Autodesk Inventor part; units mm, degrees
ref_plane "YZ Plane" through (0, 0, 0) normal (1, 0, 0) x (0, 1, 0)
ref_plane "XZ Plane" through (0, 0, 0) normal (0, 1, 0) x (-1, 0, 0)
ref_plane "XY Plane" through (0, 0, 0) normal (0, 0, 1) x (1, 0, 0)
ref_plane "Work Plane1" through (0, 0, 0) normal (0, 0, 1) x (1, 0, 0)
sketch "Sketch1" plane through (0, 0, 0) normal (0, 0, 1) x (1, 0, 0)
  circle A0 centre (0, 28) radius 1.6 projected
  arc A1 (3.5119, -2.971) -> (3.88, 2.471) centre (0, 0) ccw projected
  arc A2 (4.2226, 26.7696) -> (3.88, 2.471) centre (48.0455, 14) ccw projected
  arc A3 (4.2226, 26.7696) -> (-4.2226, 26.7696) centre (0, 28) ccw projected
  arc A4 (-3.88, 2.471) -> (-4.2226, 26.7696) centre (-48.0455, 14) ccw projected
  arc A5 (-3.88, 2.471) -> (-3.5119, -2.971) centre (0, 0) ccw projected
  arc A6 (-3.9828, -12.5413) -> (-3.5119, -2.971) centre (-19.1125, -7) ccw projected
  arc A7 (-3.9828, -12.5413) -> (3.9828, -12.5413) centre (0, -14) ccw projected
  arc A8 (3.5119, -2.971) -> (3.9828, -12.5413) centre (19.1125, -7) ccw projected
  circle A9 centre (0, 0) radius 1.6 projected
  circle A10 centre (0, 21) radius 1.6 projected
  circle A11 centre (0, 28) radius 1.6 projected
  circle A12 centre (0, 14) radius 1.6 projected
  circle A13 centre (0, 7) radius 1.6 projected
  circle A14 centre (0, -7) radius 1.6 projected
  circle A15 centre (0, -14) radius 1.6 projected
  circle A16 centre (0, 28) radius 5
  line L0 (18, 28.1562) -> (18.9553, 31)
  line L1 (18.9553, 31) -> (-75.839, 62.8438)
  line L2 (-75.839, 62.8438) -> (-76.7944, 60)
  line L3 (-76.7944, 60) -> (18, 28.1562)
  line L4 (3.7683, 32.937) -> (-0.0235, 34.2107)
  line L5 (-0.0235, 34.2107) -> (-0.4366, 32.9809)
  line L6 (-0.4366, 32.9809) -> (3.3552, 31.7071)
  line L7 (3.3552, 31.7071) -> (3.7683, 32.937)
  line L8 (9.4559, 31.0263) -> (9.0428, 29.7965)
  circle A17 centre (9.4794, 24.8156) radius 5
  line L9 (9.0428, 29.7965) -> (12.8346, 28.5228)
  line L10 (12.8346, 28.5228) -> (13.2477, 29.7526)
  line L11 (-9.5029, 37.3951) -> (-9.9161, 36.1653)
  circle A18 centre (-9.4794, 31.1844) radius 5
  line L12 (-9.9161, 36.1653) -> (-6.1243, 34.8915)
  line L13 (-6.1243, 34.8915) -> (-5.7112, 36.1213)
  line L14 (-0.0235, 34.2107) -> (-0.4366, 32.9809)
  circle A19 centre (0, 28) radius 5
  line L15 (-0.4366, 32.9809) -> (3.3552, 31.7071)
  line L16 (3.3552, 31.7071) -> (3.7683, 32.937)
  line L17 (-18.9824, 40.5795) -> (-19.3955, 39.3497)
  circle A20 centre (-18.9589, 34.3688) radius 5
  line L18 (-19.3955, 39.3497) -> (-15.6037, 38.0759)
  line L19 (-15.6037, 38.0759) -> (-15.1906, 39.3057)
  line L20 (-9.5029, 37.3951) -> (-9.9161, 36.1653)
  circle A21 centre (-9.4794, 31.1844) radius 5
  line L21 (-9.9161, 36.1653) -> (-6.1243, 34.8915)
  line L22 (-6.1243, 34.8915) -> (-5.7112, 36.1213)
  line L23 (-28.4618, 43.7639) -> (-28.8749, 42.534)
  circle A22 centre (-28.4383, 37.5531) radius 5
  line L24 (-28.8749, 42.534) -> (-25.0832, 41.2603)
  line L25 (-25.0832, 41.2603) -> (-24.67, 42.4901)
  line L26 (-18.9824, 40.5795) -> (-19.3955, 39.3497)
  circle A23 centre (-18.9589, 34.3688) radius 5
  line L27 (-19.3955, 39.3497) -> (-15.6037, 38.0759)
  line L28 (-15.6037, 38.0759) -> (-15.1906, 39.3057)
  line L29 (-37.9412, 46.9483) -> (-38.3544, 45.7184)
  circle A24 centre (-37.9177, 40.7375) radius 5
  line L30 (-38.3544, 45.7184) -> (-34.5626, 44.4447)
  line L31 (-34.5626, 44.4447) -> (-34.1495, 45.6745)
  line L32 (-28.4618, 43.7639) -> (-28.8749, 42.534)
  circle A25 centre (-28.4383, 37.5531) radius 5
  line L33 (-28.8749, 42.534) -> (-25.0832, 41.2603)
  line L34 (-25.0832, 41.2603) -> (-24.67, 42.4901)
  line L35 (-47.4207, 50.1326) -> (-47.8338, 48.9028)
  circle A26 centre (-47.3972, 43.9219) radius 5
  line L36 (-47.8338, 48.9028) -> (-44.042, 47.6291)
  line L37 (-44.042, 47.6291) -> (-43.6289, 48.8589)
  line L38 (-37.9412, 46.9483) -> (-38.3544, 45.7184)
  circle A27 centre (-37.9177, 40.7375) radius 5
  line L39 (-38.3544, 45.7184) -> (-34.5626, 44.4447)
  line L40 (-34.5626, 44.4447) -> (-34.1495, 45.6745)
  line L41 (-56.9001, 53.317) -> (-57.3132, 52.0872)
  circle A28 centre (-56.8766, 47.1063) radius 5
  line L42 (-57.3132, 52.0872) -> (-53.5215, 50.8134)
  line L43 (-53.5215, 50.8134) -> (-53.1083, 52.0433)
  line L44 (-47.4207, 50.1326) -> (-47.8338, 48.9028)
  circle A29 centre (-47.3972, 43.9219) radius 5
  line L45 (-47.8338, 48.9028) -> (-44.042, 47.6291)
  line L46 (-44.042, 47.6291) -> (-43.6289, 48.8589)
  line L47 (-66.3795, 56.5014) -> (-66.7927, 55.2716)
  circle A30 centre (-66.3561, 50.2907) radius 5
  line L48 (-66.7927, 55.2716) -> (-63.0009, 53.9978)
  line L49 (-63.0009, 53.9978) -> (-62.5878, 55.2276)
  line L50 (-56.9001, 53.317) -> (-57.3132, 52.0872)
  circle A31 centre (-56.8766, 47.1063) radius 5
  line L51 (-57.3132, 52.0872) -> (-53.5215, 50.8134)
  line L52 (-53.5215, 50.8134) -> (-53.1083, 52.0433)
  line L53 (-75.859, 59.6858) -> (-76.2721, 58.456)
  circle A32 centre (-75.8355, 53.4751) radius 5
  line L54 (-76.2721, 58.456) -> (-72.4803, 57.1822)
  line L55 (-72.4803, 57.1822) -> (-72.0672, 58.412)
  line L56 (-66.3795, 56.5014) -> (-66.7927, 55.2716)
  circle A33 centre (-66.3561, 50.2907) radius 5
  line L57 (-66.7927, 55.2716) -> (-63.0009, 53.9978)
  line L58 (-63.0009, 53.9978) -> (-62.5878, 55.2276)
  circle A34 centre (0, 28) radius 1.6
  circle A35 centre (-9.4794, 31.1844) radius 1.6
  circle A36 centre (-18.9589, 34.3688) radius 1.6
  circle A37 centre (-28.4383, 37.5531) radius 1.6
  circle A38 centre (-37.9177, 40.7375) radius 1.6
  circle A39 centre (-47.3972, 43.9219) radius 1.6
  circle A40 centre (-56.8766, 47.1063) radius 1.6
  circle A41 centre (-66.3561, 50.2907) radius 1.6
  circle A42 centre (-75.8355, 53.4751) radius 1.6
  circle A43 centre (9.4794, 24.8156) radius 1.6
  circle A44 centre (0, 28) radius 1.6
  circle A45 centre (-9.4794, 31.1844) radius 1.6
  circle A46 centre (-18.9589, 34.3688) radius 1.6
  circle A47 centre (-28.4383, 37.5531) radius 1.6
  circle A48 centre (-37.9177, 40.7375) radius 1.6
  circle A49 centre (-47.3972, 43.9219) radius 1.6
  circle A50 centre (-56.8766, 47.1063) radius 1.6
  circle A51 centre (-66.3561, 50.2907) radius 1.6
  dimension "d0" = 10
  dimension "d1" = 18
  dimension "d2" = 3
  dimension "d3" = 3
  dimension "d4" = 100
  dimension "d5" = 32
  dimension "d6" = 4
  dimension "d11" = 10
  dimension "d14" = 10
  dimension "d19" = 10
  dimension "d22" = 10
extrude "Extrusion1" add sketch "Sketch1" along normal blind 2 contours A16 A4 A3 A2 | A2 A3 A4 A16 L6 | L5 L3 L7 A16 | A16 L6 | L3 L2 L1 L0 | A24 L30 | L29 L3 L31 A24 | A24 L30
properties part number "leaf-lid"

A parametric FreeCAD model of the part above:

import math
import FreeCAD as App
import Part
import Sketcher

V = App.Vector
Q = App.Units.Quantity

doc = App.newDocument("Part")
body = doc.addObject("PartDesign::Body", "Body")

sketch1 = doc.addObject("Sketcher::SketchObject", "Sketch")
body.addObject(sketch1)
sketch1.AttachmentSupport = (doc.XY_Plane, [""])
sketch1.MapMode = "FlatFace"
sketch1.addGeometry(Part.LineSegment(V(3.4, 31.7, 0), V(3.8, 32.9, 0)), False)
sketch1.addGeometry(Part.LineSegment(V(3.8, 32.9, 0), V(18, 28.2, 0)), False)
sketch1.addGeometry(Part.LineSegment(V(18, 28.2, 0), V(19, 31, 0)), False)
sketch1.addGeometry(Part.LineSegment(V(19, 31, 0), V(-75.8, 62.8, 0)), False)
sketch1.addGeometry(Part.LineSegment(V(-75.8, 62.8, 0), V(-76.8, 60, 0)), False)
sketch1.addGeometry(Part.LineSegment(V(-76.8, 60, 0), V(-37.9, 46.9, 0)), False)
sketch1.addGeometry(Part.LineSegment(V(-37.9, 46.9, 0), V(-38.4, 45.7, 0)), False)
sketch1.addGeometry(Part.ArcOfCircle(Part.Circle(V(-37.9, 40.7, 0), V(0, 0, 1), 5), math.radians(95), math.radians(408)), False)
sketch1.addGeometry(Part.LineSegment(V(-34.6, 44.4, 0), V(-34.1, 45.7, 0)), False)
sketch1.addGeometry(Part.LineSegment(V(-34.1, 45.7, 0), V(0, 34.2, 0)), False)
sketch1.addGeometry(Part.LineSegment(V(0, 34.2, 0), V(-0.4, 33, 0)), False)
sketch1.addGeometry(Part.ArcOfCircle(Part.Circle(V(0, 28, 0), V(0, 0, 1), 5), math.radians(95), math.radians(408)), False)
sketch1.addGeometry(Part.Circle(V(0, 28, 0), V(0, 0, 1), 1.6), False)
sketch1.addGeometry(Part.Circle(V(-37.9, 40.7, 0), V(0, 0, 1), 1.6), False)
sketch1.addConstraint(Sketcher.Constraint("Coincident", 0, 2, 1, 1))
sketch1.addConstraint(Sketcher.Constraint("Coincident", 1, 2, 2, 1))
sketch1.addConstraint(Sketcher.Constraint("Coincident", 2, 2, 3, 1))
sketch1.addConstraint(Sketcher.Constraint("Coincident", 3, 2, 4, 1))
sketch1.addConstraint(Sketcher.Constraint("Coincident", 4, 2, 5, 1))
sketch1.addConstraint(Sketcher.Constraint("Coincident", 5, 2, 6, 1))
sketch1.addConstraint(Sketcher.Constraint("Coincident", 6, 2, 7, 1))
sketch1.addConstraint(Sketcher.Constraint("Coincident", 7, 2, 8, 1))
sketch1.addConstraint(Sketcher.Constraint("Coincident", 8, 2, 9, 1))
sketch1.addConstraint(Sketcher.Constraint("Coincident", 9, 2, 10, 1))
sketch1.addConstraint(Sketcher.Constraint("Coincident", 10, 2, 11, 1))
sketch1.addConstraint(Sketcher.Constraint("Coincident", 11, 2, 0, 1))
sketch1.addConstraint(Sketcher.Constraint("Coincident", 12, 3, 11, 3))
sketch1.addConstraint(Sketcher.Constraint("Coincident", 13, 3, 7, 3))
sketch1.addConstraint(Sketcher.Constraint("Equal", 7, 11))
sketch1.addConstraint(Sketcher.Constraint("Equal", 12, 13))
sketch1.addConstraint(Sketcher.Constraint("PointOnObject", 11, 3, -2))
sketch1.addConstraint(Sketcher.Constraint("Perpendicular", 0, 1))
sketch1.addConstraint(Sketcher.Constraint("Perpendicular", 1, 2))
sketch1.addConstraint(Sketcher.Constraint("Perpendicular", 2, 3))
sketch1.addConstraint(Sketcher.Constraint("Perpendicular", 3, 4))
sketch1.addConstraint(Sketcher.Constraint("Perpendicular", 4, 5))
sketch1.addConstraint(Sketcher.Constraint("Perpendicular", 5, 6))
sketch1.addConstraint(Sketcher.Constraint("Parallel", 6, 8))
sketch1.addConstraint(Sketcher.Constraint("Perpendicular", 8, 9))
sketch1.addConstraint(Sketcher.Constraint("Perpendicular", 9, 10))
sketch1.addConstraint(Sketcher.Constraint("Equal", 2, 4))
sketch1.addConstraint(Sketcher.Constraint("Equal", 0, 6))
sketch1.addConstraint(Sketcher.Constraint("Equal", 6, 8))
sketch1.addConstraint(Sketcher.Constraint("Equal", 8, 10))
sketch1.addConstraint(Sketcher.Constraint("Radius", 7, Q("5 mm")))
sketch1.addConstraint(Sketcher.Constraint("Distance", 2, Q("3 mm")))
sketch1.addConstraint(Sketcher.Constraint("Distance", 3, Q("100 mm")))
sketch1.addConstraint(Sketcher.Constraint("DistanceX", -1, 1, 1, 2, Q("18 mm")))
sketch1.addConstraint(Sketcher.Constraint("DistanceY", 11, 3, 2, 2, Q("3 mm")))
sketch1.addConstraint(Sketcher.Constraint("DistanceY", 11, 3, 4, 2, Q("32 mm")))
sketch1.addConstraint(Sketcher.Constraint("Diameter", 12, Q("3.2 mm")))
sketch1.addConstraint(Sketcher.Constraint("Distance", 9, Q("36 mm")))
sketch1.addConstraint(Sketcher.Constraint("DistanceY", -1, 1, 11, 3, Q("28 mm")))
sketch1.addConstraint(Sketcher.Constraint("DistanceY", 6, 2, 5, 2, Q("1.23 mm")))
sketch1.addConstraint(Sketcher.Constraint("DistanceX", 4, 2, 6, 2, Q("38.44 mm")))
sketch1.addConstraint(Sketcher.Constraint("DistanceY", -1, 1, 10, 2, Q("32.981 mm")))
pad1 = doc.addObject("PartDesign::Pad", "Pad")
body.addObject(pad1)
pad1.Profile = sketch1
pad1.Length = 2

doc.recompute()
